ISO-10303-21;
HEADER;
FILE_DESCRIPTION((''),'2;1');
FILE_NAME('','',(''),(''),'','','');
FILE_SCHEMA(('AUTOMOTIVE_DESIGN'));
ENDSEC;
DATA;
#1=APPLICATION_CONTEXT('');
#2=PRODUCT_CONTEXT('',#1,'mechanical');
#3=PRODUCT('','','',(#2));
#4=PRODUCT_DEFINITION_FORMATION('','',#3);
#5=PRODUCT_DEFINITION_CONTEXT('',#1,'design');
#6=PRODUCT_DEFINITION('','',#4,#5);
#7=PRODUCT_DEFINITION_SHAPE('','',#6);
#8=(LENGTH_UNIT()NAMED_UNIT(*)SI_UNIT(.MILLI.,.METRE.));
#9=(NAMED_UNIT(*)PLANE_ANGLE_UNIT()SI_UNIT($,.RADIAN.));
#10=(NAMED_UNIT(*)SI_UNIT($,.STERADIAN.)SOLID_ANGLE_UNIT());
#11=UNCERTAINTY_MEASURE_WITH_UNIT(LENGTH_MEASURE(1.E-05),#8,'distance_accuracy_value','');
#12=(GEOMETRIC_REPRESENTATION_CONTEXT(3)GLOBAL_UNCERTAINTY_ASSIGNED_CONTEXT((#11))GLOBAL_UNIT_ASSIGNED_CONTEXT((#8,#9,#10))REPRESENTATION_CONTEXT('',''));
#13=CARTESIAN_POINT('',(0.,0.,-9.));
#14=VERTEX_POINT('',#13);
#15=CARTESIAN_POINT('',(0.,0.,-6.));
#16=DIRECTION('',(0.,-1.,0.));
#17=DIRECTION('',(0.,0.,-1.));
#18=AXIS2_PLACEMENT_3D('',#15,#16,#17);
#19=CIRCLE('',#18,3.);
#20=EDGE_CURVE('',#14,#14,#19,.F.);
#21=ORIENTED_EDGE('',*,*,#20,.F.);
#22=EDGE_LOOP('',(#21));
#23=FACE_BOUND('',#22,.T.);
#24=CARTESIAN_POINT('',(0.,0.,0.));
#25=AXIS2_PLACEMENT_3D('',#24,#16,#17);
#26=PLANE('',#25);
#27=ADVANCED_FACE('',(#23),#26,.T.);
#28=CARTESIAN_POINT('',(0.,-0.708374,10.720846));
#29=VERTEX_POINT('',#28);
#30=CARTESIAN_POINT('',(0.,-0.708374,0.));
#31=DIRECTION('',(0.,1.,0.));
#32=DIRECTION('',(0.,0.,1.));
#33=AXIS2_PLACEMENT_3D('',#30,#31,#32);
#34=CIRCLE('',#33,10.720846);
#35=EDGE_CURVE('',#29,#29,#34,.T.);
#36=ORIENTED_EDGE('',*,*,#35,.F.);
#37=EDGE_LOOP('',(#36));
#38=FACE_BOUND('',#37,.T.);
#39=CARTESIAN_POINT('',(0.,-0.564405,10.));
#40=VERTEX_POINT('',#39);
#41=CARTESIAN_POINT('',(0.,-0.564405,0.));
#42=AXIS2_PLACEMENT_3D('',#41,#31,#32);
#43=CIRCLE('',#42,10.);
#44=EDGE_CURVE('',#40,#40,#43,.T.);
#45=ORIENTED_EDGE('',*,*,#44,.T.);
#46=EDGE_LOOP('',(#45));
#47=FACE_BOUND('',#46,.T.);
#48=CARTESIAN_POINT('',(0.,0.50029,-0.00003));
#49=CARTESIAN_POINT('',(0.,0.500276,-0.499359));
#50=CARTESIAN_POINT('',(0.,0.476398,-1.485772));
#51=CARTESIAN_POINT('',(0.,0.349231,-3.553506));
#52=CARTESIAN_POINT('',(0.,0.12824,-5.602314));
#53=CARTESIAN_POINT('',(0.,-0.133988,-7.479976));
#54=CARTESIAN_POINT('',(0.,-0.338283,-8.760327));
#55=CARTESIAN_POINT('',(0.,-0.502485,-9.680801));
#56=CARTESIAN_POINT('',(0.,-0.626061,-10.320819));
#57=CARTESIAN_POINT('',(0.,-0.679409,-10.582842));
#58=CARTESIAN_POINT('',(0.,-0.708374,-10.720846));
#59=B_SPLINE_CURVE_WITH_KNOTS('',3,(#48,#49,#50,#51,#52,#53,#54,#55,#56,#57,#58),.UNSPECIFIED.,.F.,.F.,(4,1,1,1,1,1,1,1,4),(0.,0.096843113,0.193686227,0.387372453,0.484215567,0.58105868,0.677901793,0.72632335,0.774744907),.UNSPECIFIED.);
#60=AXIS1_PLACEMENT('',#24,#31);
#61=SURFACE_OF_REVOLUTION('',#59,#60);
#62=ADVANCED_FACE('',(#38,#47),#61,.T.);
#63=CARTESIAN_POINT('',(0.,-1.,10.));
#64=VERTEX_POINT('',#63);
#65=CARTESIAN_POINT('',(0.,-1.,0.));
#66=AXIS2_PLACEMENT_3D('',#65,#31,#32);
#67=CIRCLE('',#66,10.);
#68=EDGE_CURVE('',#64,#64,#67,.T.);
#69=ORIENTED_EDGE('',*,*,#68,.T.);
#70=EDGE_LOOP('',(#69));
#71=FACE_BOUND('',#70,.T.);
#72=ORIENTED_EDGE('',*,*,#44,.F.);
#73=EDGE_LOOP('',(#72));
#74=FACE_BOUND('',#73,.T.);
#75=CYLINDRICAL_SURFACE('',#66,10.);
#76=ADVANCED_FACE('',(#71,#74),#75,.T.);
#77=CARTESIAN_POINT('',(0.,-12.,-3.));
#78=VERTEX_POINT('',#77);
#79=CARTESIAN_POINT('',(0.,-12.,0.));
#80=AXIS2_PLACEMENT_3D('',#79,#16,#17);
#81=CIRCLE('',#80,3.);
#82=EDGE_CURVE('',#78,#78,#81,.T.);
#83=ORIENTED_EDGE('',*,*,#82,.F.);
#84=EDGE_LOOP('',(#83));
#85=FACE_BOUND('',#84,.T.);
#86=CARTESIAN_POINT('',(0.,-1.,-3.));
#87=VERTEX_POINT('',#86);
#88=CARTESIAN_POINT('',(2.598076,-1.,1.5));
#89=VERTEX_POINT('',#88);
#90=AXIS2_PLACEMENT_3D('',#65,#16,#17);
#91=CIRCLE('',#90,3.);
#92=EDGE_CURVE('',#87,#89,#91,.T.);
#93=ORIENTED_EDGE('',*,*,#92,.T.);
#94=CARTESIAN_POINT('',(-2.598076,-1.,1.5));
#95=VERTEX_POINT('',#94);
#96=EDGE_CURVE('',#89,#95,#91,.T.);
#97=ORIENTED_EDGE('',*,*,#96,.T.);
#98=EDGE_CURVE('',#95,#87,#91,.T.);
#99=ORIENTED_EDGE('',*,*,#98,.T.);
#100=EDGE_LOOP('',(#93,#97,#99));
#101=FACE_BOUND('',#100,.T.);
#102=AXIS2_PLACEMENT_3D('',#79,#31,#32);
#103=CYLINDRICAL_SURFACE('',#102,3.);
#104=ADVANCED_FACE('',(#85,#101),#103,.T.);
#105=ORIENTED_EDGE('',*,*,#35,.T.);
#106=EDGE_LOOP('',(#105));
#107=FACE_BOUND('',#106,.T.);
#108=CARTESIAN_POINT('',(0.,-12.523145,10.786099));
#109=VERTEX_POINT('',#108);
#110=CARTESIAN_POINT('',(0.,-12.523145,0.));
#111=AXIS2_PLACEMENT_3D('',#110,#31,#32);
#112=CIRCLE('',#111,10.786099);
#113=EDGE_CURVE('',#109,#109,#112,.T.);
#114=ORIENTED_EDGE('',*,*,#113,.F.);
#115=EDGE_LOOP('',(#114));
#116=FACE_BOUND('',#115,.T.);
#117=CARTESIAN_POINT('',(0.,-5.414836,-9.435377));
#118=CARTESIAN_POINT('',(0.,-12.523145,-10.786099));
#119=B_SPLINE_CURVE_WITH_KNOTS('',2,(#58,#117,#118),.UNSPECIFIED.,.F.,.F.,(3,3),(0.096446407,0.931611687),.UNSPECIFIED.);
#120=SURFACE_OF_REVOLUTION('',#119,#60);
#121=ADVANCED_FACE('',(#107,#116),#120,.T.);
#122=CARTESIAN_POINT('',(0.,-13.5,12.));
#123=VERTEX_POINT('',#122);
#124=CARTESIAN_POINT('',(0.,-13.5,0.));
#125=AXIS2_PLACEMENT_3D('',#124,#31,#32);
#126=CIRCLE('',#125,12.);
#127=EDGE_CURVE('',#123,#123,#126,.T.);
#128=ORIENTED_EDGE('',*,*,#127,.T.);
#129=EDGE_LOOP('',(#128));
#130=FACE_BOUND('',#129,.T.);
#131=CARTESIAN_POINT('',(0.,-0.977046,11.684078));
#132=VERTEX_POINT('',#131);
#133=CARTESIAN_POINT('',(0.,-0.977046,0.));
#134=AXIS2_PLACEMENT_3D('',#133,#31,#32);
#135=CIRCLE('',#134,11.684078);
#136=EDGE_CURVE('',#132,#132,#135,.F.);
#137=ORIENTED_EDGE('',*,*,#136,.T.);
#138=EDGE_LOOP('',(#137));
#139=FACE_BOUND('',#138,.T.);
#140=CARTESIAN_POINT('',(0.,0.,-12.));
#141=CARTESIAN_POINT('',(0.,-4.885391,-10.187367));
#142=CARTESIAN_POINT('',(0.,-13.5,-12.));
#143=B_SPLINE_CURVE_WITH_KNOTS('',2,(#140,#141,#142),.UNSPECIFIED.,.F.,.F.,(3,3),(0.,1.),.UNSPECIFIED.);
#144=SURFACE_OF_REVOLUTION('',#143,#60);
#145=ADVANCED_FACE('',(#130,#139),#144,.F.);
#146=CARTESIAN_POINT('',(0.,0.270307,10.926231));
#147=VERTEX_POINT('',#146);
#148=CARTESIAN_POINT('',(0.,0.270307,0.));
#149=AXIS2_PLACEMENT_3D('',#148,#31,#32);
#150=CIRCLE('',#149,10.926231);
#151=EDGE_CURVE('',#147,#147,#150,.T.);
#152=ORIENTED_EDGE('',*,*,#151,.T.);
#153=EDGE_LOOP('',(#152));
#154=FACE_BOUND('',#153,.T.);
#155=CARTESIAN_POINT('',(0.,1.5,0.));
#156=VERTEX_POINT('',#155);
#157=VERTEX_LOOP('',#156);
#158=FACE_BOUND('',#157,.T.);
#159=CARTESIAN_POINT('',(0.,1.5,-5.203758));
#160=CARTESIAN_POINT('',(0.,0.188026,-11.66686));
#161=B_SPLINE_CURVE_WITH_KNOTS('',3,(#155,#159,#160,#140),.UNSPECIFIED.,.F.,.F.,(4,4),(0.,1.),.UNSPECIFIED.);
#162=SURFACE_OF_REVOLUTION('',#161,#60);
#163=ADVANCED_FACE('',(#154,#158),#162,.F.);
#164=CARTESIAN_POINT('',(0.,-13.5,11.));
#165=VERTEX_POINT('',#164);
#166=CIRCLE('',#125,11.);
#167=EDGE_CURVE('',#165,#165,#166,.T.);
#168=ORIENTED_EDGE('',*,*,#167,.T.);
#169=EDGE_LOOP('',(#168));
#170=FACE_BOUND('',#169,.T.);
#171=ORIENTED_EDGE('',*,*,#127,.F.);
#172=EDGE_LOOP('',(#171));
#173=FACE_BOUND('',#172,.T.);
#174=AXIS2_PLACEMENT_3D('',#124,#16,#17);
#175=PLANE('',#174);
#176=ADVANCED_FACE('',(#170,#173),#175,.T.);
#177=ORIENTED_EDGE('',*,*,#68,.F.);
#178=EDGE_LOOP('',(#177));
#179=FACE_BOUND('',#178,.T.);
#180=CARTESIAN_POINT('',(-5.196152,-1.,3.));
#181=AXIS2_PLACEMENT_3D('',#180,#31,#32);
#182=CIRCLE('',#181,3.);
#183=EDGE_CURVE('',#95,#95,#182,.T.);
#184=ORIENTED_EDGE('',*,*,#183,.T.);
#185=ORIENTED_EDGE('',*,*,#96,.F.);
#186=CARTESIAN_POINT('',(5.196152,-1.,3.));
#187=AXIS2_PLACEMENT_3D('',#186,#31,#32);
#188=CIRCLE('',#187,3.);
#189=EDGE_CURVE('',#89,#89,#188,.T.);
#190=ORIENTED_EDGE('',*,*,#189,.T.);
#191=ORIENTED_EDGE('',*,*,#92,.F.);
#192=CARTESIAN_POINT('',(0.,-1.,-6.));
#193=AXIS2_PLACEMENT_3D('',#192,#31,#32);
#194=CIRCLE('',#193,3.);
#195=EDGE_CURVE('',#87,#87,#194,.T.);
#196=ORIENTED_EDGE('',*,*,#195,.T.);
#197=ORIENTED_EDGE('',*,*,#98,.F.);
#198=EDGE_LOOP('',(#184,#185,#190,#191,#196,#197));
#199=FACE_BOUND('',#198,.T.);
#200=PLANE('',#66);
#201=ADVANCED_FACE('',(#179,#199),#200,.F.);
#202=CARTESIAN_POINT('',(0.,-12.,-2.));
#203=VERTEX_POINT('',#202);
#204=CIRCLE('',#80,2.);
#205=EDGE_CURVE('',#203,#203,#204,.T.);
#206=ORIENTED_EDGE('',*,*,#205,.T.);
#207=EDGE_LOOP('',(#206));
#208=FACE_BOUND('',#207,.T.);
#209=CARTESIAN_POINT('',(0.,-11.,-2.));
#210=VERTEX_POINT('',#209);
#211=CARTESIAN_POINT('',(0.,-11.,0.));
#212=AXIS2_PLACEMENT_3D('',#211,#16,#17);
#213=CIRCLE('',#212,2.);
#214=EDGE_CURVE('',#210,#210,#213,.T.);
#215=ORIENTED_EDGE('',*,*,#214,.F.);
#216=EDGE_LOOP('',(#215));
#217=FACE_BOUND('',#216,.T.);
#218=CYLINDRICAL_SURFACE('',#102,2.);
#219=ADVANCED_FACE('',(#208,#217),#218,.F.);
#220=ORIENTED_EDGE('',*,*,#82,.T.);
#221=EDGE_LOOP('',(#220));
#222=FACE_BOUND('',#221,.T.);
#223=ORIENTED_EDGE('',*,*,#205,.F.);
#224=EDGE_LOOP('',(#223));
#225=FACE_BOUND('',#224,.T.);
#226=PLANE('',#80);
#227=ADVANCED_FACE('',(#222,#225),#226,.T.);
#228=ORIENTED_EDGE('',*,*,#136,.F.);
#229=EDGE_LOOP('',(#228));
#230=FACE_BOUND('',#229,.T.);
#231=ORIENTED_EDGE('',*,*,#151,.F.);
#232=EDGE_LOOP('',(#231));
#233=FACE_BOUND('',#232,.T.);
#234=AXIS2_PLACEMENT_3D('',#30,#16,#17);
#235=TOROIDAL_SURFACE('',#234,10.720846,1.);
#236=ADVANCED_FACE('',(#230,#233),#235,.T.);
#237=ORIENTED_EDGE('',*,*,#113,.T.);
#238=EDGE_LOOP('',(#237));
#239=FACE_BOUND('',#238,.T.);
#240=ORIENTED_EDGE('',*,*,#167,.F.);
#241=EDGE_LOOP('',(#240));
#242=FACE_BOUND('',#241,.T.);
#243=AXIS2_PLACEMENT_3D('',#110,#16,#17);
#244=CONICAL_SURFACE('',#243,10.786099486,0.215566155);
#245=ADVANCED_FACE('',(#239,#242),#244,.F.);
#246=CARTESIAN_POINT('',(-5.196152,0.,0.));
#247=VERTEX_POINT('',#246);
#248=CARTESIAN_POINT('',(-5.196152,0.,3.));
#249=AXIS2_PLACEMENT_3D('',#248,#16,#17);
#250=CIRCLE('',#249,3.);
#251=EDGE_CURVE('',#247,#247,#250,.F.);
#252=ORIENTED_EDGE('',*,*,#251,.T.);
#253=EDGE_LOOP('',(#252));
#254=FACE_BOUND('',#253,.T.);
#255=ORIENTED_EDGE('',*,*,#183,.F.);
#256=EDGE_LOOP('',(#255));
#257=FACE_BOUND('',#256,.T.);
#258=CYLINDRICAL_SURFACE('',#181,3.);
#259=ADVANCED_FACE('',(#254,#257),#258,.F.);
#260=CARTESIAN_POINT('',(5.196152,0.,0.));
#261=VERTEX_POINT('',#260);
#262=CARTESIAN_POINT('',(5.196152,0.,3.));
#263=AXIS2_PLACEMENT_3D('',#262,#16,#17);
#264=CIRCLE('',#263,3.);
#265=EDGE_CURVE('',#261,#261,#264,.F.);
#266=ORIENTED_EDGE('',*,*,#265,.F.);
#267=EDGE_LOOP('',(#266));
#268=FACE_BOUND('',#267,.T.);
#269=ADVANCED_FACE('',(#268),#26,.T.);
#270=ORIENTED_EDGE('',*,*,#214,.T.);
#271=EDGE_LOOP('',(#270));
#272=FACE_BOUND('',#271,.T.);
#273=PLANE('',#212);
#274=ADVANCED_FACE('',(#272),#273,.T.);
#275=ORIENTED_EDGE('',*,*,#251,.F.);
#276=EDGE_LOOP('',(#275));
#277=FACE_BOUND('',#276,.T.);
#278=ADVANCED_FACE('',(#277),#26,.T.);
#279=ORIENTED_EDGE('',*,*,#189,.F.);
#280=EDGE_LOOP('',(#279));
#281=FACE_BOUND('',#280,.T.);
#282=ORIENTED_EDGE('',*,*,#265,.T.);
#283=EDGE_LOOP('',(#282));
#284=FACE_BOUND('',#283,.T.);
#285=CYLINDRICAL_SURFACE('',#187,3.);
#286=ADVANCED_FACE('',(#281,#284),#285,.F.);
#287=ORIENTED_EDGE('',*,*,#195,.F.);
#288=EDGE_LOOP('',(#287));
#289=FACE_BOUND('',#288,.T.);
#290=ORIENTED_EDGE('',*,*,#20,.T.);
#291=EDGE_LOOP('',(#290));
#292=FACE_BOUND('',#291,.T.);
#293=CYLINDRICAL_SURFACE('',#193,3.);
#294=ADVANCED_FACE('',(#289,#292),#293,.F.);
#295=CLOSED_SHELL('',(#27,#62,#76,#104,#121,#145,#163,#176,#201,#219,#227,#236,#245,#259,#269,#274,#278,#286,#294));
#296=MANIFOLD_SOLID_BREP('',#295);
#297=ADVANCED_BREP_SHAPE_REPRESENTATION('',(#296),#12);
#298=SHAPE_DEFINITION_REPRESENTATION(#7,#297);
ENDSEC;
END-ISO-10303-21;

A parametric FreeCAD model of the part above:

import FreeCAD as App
import Part
import Sketcher

V = App.Vector


def edges_at(feature, points):
    """Names of the edges that pass closest to the given points."""
    edges = feature.Shape.Edges
    near = lambda p: min(range(len(edges)), key=lambda i: edges[i].distToShape(Part.Vertex(*p))[0])
    return sorted({f"Edge{near(p) + 1}" for p in points})

doc = App.newDocument("Part")
body = doc.addObject("PartDesign::Body", "Body")

# Sketch on XZ plane
sketch1 = body.newObject("Sketcher::SketchObject", "Sketch")
sketch1.AttachmentSupport = (doc.getObject("XZ_Plane"), [""])
sketch1.MapMode = "FlatFace"
sketch1.addGeometry(Part.Circle(V(0, 0, 0), V(0, 0, 1), 10), False)
sketch1.addGeometry(Part.Circle(V(0, -6, 0), V(0, 0, 1), 3), False)
sketch1.addGeometry(Part.Circle(V(-5.196152, 3, 0), V(0, 0, 1), 3), False)
sketch1.addGeometry(Part.Circle(V(5.196152, 3, 0), V(0, 0, 1), 3), False)
sketch1.addConstraint(Sketcher.Constraint("Coincident", 0, 3, -1, 1))
sketch1.addConstraint(Sketcher.Constraint("Equal", 1, 2))
sketch1.addConstraint(Sketcher.Constraint("Equal", 2, 3))
sketch1.addConstraint(Sketcher.Constraint("Symmetric", 2, 3, 3, 3, -2))
sketch1.addConstraint(Sketcher.Constraint("PointOnObject", 1, 3, -2))
sketch1.addConstraint(Sketcher.Constraint("Diameter", 0, 20.0))
sketch1.addConstraint(Sketcher.Constraint("Diameter", 1, 6.0))
sketch1.addConstraint(Sketcher.Constraint("DistanceY", 1, 3, -1, 1, 6.0))
sketch1.addConstraint(Sketcher.Constraint("DistanceY", -1, 1, 2, 3, 3.0))
sketch1.addConstraint(Sketcher.Constraint("DistanceX", 2, 3, -1, 1, 5.196152))
pad1 = body.newObject("PartDesign::Pad", "Pad")
pad1.Profile = sketch1
pad1.Length = 1

# Sketch on YZ plane
sketch2 = body.newObject("Sketcher::SketchObject", "Sketch001")
sketch2.AttachmentSupport = (doc.getObject("YZ_Plane"), [""])
sketch2.MapMode = "FlatFace"
sketch2.addGeometry(Part.BSplineCurve([V(-0.564425, -9.999996, 0), V(-0.584913, -10.107211, 0), V(-0.635078, -10.365056, 0), V(-0.679413, -10.582841, 0), V(-0.708374, -10.720846, 0)], [4, 1, 4], [0.694252252, 0.72632335, 0.774744907], False, 3, [1, 1, 1, 1, 1], False), False)
sketch2.addGeometry(Part.BSplineCurve([V(-0.708374, -10.720846, 0), V(-5.414836, -9.435377, 0), V(-12.523145, -10.786099, 0)], [3, 3], [0.096446407, 0.931611687], False, 2, [1, 1, 1], False), False)
sketch2.addGeometry(Part.LineSegment(V(-12.523145, -10.786099, 0), V(-13.5, -11, 0)), False)
sketch2.addGeometry(Part.LineSegment(V(-13.5, -11, 0), V(-13.5, -12, 0)), False)
sketch2.addGeometry(Part.BSplineCurve([V(0, -12, 0), V(-4.885391, -10.187367, 0), V(-13.5, -12, 0)], [3, 3], [0, 1], False, 2, [1, 1, 1], False), False)
sketch2.addGeometry(Part.BSplineCurve([V(1.5, 0, 0), V(1.5, -5.203758, 0), V(0.188026, -11.66686, 0), V(0, -12, 0)], [4, 4], [0, 1], False, 3, [1, 1, 1, 1], False), False)
sketch2.addGeometry(Part.LineSegment(V(1.5, 0, 0), V(0, 0, 0)), False)
sketch2.addGeometry(Part.LineSegment(V(0, 0, 0), V(0, -10, 0)), False)
sketch2.addGeometry(Part.LineSegment(V(0, -10, 0), V(-0.564425, -9.999996, 0)), False)
sketch2.addConstraint(Sketcher.Constraint("Block", 0))
sketch2.addConstraint(Sketcher.Constraint("Block", 1))
sketch2.addConstraint(Sketcher.Constraint("Block", 4))
sketch2.addConstraint(Sketcher.Constraint("Block", 5))
sketch2.addConstraint(Sketcher.Constraint("Coincident", 1, 2, 2, 1))
sketch2.addConstraint(Sketcher.Constraint("Coincident", 2, 2, 3, 1))
sketch2.addConstraint(Sketcher.Constraint("Coincident", 3, 2, 4, 2))
sketch2.addConstraint(Sketcher.Constraint("Coincident", 5, 1, 6, 1))
sketch2.addConstraint(Sketcher.Constraint("Coincident", 6, 2, 7, 1))
sketch2.addConstraint(Sketcher.Constraint("Coincident", 7, 2, 8, 1))
sketch2.addConstraint(Sketcher.Constraint("Coincident", 8, 2, 0, 1))
sketch2.addConstraint(Sketcher.Constraint("Vertical", 3))
sketch2.addConstraint(Sketcher.Constraint("Horizontal", 6))
sketch2.addConstraint(Sketcher.Constraint("Vertical", 7))
sketch2.addConstraint(Sketcher.Constraint("PointOnObject", 7, 2, -2))
sketch2.addConstraint(Sketcher.Constraint("DistanceY", 3, 2, 3, 1, 1.0))
sketch2.addConstraint(Sketcher.Constraint("DistanceY", 7, 2, 7, 1, 10.0))
revolution = body.newObject("PartDesign::Revolution", "Revolution")
revolution.Profile = sketch2
revolution.ReferenceAxis = (sketch2, ["H_Axis"])
revolution.Angle = 360
doc.recompute()

fillet = body.newObject("PartDesign::Fillet", "Fillet")
fillet.Base = (revolution, edges_at(revolution, [(0, 0, -12)]))
fillet.Radius = 1

# Sketch on XZ plane
sketch3 = body.newObject("Sketcher::SketchObject", "Sketch002")
sketch3.AttachmentSupport = (doc.getObject("XZ_Plane"), [""])
sketch3.MapMode = "FlatFace"
sketch3.AttachmentOffset = App.Placement(V(0, 0, 1), App.Rotation())
sketch3.addGeometry(Part.Circle(V(0, 0, 0), V(0, 0, 1), 3), False)
sketch3.addGeometry(Part.Circle(V(0, 0, 0), V(0, 0, 1), 2), False)
sketch3.addConstraint(Sketcher.Constraint("Coincident", 0, 3, -1, 1))
sketch3.addConstraint(Sketcher.Constraint("Coincident", 1, 3, -1, 1))
sketch3.addConstraint(Sketcher.Constraint("Diameter", 0, 6.0))
sketch3.addConstraint(Sketcher.Constraint("Diameter", 1, 4.0))
pad2 = body.newObject("PartDesign::Pad", "Pad001")
pad2.Profile = sketch3
pad2.Length = 11

# Sketch on XZ plane
sketch4 = body.newObject("Sketcher::SketchObject", "Sketch003")
sketch4.AttachmentSupport = (doc.getObject("XZ_Plane"), [""])
sketch4.MapMode = "FlatFace"
sketch4.AttachmentOffset = App.Placement(V(0, 0, 1), App.Rotation())
sketch4.addGeometry(Part.Circle(V(0, 0, 0), V(0, 0, 1), 2), False)
sketch4.addConstraint(Sketcher.Constraint("Coincident", 0, 3, -1, 1))
sketch4.addConstraint(Sketcher.Constraint("Diameter", 0, 4.0))
pad3 = body.newObject("PartDesign::Pad", "Pad002")
pad3.Profile = sketch4
pad3.Length = 10

doc.recompute()
